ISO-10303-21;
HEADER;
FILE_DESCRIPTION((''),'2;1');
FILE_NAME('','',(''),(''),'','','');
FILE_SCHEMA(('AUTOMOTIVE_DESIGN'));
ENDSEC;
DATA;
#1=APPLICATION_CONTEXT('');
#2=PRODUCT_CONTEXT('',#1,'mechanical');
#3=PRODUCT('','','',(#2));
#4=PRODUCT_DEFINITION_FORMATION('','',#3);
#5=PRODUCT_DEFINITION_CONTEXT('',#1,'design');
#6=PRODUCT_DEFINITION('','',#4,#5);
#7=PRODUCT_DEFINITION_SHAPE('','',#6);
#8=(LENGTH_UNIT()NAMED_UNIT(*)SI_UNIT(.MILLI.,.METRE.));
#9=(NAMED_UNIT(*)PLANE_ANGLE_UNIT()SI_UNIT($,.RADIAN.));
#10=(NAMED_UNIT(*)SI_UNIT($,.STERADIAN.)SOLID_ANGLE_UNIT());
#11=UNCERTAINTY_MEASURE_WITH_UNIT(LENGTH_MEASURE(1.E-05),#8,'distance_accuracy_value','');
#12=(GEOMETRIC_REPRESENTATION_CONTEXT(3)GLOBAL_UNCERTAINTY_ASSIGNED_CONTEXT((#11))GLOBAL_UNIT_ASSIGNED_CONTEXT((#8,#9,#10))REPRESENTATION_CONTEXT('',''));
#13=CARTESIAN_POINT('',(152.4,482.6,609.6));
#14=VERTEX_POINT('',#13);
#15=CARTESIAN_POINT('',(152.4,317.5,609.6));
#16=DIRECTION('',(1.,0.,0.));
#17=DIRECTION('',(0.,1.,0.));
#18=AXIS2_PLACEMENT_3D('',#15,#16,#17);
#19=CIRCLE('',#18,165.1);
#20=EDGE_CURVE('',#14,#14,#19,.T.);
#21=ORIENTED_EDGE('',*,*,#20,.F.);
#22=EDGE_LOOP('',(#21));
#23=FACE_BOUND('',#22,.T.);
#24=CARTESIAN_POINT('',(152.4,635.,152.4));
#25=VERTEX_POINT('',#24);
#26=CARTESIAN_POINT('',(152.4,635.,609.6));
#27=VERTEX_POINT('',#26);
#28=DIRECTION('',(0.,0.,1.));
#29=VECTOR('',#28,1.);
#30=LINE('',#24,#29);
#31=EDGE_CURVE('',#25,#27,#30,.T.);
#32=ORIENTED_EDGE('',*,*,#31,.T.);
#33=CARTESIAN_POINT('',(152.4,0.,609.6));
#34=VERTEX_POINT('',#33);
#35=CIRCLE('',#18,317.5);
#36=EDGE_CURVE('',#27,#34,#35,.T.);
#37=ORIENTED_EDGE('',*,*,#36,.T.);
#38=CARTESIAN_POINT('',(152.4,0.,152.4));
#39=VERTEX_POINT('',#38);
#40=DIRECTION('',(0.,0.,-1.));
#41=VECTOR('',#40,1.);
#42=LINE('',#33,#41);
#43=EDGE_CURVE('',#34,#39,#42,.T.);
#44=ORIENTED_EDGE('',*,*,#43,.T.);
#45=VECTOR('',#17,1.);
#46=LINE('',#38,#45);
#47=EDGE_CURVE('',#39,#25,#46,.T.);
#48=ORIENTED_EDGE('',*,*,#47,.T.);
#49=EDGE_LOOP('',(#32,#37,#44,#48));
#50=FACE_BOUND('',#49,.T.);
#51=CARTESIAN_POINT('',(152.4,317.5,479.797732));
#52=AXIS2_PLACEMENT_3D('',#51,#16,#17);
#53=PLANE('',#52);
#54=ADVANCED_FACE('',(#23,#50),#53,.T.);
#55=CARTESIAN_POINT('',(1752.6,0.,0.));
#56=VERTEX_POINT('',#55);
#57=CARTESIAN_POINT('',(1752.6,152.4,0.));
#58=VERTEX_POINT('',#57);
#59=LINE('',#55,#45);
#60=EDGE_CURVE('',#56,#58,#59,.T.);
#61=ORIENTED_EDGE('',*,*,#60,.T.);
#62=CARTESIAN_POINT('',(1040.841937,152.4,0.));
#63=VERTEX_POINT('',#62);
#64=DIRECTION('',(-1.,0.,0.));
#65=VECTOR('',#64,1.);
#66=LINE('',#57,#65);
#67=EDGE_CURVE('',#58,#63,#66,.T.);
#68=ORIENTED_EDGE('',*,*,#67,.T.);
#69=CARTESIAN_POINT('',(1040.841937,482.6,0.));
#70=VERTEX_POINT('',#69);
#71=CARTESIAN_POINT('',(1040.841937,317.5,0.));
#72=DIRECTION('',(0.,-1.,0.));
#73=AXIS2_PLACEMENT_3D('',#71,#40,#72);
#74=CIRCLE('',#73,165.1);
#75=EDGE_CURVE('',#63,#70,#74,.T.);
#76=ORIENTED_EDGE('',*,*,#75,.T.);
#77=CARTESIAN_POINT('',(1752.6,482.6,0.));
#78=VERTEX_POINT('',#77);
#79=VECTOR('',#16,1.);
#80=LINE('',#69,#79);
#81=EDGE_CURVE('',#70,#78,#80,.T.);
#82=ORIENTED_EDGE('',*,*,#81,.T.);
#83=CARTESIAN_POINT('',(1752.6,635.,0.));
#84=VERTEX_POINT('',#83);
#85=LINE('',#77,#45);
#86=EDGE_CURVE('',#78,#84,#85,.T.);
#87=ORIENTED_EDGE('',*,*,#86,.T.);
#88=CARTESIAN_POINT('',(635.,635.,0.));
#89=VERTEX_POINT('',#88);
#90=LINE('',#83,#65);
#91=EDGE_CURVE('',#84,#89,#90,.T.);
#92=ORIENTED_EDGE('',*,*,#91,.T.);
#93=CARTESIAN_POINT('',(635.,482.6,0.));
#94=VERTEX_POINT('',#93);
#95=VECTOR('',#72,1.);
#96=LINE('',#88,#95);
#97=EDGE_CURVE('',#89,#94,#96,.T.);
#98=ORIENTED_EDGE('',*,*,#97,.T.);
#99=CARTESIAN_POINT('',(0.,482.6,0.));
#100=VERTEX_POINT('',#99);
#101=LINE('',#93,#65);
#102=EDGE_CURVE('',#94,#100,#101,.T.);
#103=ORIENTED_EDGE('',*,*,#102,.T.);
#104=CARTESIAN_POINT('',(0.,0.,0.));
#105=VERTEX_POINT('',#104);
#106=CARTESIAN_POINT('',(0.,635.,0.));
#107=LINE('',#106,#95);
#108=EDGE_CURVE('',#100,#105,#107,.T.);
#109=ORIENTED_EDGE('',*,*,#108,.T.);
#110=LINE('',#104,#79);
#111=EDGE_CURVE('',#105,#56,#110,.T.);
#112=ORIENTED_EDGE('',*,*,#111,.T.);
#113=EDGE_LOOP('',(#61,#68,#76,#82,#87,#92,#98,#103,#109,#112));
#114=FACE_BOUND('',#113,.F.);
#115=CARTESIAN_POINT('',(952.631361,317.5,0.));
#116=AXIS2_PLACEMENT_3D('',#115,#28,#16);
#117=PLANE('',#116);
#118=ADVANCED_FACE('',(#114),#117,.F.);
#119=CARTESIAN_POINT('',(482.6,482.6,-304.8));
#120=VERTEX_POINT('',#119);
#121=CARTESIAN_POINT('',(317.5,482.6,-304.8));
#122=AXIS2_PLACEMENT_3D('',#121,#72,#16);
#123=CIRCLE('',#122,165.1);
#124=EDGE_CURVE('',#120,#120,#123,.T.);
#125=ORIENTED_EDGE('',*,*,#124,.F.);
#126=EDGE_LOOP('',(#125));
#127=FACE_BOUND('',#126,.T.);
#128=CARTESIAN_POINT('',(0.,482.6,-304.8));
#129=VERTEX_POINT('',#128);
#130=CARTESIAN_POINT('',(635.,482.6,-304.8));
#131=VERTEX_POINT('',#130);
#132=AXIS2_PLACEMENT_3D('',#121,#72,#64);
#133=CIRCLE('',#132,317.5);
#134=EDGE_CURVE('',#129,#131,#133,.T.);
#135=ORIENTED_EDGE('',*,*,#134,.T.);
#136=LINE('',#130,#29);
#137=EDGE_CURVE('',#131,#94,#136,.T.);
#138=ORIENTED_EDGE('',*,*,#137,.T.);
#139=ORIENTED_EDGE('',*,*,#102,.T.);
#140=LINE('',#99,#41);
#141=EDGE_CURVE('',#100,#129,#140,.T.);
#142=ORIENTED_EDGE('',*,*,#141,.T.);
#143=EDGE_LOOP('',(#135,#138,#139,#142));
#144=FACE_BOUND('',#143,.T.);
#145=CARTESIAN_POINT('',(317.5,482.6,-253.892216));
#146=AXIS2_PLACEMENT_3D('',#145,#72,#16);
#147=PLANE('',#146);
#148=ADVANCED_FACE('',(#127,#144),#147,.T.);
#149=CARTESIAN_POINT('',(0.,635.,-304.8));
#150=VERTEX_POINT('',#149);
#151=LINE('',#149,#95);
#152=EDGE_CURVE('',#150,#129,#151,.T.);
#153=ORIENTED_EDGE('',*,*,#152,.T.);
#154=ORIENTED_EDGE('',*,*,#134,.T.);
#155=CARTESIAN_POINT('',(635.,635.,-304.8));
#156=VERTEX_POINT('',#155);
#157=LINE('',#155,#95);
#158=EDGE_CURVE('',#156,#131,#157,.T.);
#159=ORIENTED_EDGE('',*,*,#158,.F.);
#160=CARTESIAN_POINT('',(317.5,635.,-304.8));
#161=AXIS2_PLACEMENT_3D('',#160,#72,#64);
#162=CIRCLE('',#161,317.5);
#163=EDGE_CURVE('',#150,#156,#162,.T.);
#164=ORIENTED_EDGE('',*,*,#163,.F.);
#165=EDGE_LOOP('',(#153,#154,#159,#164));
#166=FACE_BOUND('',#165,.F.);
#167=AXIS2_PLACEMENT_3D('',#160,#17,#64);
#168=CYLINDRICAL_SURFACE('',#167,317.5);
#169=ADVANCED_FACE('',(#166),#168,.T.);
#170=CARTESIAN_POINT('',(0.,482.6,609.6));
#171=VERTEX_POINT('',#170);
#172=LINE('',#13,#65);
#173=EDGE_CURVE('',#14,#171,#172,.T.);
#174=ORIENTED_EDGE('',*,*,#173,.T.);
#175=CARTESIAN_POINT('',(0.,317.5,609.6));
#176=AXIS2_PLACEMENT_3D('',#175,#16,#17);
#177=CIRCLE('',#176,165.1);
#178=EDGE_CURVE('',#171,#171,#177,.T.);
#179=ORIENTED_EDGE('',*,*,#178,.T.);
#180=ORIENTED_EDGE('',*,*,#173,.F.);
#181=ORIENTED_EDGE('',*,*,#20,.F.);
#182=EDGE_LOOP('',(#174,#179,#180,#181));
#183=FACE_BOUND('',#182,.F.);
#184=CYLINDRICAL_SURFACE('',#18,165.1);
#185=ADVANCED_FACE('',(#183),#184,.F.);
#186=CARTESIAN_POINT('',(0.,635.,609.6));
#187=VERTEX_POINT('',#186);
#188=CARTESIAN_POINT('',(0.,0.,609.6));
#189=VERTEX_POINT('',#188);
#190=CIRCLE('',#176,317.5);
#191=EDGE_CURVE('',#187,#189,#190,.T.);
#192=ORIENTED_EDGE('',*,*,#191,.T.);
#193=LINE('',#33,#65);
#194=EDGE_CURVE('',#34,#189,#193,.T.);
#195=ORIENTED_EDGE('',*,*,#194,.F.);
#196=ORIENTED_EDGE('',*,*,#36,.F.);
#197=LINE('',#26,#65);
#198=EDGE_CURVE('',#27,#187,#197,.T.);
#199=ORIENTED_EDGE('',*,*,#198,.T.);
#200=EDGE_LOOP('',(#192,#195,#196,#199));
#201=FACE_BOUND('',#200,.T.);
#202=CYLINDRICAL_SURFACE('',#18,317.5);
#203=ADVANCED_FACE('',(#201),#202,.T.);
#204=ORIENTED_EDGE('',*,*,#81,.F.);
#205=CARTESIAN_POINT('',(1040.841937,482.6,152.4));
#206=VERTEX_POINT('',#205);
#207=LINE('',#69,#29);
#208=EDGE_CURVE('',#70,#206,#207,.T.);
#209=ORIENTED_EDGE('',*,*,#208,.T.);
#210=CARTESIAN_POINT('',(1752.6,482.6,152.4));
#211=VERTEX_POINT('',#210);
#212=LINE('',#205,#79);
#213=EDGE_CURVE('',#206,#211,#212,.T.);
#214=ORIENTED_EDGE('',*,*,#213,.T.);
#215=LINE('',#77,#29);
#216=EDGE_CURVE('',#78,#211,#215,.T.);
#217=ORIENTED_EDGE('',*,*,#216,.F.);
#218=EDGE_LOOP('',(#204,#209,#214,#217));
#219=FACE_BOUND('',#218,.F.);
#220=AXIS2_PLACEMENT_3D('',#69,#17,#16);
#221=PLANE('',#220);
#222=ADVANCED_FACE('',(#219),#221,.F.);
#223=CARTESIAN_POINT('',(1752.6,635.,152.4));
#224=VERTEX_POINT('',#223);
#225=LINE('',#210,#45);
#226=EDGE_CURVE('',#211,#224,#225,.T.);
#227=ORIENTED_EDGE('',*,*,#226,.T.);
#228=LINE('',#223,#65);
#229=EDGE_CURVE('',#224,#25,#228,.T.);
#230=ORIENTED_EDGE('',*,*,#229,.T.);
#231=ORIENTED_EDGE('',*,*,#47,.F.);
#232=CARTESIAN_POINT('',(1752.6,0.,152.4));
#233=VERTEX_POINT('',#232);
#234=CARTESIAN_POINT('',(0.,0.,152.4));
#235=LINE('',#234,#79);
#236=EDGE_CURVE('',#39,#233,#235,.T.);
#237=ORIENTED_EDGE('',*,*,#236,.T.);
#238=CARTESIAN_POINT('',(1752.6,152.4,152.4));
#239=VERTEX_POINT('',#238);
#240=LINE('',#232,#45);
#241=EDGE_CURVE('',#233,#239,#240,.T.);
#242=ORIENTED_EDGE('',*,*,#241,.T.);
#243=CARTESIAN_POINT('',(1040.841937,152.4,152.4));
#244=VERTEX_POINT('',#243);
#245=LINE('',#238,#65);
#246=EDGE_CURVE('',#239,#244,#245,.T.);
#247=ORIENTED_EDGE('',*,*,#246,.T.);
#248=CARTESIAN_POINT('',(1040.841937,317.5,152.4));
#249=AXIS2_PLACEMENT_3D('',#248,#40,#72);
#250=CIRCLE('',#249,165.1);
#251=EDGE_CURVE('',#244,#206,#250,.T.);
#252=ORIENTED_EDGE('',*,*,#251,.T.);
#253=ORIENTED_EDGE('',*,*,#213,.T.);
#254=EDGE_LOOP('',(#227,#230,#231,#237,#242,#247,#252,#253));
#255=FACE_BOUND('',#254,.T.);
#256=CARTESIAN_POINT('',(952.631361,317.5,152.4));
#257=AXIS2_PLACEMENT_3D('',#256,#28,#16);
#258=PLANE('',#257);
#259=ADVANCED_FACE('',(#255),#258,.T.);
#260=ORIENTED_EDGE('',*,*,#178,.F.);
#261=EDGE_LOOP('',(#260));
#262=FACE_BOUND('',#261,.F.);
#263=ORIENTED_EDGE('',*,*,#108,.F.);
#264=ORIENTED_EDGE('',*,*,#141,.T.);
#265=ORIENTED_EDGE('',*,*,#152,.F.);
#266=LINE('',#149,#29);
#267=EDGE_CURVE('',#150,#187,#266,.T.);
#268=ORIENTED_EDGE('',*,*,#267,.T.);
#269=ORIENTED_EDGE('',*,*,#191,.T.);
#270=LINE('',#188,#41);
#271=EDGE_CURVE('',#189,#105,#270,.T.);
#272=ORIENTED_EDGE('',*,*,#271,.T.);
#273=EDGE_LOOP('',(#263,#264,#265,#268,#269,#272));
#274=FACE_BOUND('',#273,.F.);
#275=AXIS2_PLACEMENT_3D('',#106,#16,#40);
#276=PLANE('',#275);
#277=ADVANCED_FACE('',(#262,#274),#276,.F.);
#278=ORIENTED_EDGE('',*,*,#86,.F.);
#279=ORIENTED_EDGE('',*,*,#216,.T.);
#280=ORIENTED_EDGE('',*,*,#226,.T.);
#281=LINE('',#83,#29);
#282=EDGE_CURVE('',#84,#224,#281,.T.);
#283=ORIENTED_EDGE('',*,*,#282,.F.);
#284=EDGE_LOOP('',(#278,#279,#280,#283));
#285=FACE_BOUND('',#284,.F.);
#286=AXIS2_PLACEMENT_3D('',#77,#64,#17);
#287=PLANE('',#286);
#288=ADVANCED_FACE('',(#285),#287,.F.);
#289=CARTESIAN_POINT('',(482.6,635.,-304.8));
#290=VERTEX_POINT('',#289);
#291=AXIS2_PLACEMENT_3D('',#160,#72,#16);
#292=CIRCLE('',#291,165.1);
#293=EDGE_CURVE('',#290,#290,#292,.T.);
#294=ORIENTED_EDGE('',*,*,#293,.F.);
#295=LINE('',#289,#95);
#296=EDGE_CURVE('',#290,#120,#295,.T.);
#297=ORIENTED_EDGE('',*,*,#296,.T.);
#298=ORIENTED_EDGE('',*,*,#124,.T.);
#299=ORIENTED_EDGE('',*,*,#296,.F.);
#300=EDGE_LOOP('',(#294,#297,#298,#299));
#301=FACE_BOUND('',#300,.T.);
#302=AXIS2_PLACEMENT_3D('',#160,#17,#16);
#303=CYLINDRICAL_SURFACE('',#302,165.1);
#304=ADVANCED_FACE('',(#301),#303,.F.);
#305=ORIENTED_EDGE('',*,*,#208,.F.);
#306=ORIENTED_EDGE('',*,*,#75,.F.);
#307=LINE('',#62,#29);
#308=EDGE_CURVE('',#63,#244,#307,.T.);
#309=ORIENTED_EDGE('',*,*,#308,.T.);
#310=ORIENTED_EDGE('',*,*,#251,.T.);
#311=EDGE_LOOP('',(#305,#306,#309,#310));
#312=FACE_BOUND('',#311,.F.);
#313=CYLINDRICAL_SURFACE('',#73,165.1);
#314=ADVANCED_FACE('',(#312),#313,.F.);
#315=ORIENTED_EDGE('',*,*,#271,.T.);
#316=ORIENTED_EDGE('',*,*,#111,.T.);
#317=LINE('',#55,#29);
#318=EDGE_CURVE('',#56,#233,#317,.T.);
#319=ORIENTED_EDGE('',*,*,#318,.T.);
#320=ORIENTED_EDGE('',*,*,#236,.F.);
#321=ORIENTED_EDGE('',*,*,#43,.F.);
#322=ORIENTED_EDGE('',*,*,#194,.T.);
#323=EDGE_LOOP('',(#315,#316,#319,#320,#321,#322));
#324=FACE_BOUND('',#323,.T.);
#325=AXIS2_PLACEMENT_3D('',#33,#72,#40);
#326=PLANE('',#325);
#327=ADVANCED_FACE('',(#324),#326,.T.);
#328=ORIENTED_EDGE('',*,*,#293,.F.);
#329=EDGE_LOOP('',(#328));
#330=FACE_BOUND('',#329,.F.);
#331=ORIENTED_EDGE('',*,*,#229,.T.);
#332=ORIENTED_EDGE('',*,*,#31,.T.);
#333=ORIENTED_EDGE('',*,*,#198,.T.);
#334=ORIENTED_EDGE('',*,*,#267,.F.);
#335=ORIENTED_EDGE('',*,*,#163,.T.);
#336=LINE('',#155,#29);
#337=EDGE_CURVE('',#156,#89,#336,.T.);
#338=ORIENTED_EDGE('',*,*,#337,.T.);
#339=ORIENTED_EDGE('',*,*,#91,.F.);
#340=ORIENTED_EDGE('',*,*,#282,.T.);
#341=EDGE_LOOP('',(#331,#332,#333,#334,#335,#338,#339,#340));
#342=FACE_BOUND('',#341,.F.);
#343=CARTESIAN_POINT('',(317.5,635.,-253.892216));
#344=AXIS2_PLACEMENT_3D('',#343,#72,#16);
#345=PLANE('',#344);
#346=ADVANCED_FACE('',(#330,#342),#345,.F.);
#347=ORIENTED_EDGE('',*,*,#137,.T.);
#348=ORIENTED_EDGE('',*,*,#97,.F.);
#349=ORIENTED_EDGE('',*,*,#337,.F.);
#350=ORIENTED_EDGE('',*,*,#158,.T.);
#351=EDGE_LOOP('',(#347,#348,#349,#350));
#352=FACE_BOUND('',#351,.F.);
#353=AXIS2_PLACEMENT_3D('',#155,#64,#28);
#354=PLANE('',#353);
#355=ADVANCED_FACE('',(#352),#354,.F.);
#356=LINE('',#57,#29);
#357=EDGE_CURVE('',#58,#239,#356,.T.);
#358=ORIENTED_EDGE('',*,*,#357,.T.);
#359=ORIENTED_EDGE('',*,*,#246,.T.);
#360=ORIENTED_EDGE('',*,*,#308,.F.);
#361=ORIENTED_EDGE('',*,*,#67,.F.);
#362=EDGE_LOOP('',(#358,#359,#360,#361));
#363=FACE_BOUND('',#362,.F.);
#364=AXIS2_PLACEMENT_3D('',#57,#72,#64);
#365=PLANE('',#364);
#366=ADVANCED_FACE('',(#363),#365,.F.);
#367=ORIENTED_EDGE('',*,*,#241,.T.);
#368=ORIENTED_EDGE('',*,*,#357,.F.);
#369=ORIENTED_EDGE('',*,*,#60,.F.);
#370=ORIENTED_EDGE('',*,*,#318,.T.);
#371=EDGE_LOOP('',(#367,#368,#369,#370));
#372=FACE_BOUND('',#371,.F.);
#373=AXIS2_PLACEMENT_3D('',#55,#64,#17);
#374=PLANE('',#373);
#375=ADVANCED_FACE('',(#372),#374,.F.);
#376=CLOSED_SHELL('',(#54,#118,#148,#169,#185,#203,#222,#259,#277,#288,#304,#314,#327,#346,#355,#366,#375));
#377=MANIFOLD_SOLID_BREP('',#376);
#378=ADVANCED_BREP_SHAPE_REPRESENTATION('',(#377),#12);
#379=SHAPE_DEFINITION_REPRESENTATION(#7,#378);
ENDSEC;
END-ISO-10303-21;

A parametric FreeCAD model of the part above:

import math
import FreeCAD as App
import Part
import Sketcher
Q = App.Units.Quantity

doc = App.newDocument("Part")
params = doc.addObject("Spreadsheet::Sheet", "Params")
for row, (alias, value) in enumerate([
    ("sketch1_radius", "6.5 in"),
    ("sketch1_width", "69 in"),
    ("sketch1_height", "25 in"),
    ("pad1_length", "6 in"),
    ("sketch2_diameter", "13 in"),
    ("sketch2_radius", "12.5 in"),
    ("sketch2_height", "18 in"),
    ("pad2_length", "6 in"),
    ("sketch3_diameter", "13 in"),
    ("sketch3_radius", "12.5 in"),
    ("sketch3_height", "12 in"),
    ("pad3_length", "6 in"),
], start=1):
    params.set(f"A{row}", alias)
    params.set(f"B{row}", "=" + value)
    params.setAlias(f"B{row}", alias)

body = doc.addObject("PartDesign::Body", "Body")

sketch1 = body.newObject("Sketcher::SketchObject", "Sketch")
sketch1.AttachmentSupport = (doc.getObject("XY_Plane"), [""])
sketch1.MapMode = "FlatFace"
sketch1.addGeometry(Part.LineSegment(App.Vector(0, 635, 0), App.Vector(0, 0, 0)), False)
sketch1.addGeometry(Part.LineSegment(App.Vector(0, 0, 0), App.Vector(1752.6, 0, 0)), False)
sketch1.addGeometry(Part.LineSegment(App.Vector(1752.6, 0, 0), App.Vector(1752.6, 152.4, 0)), False)
sketch1.addGeometry(Part.LineSegment(App.Vector(1752.6, 152.4, 0), App.Vector(1040.841937, 152.4, 0)), False)
sketch1.addGeometry(Part.ArcOfCircle(Part.Circle(App.Vector(1040.841937, 317.5, 0), App.Vector(0, 0, 1), 165.1), math.radians(90), math.radians(270)), False)
sketch1.addGeometry(Part.LineSegment(App.Vector(1040.841937, 482.6, 0), App.Vector(1752.6, 482.6, 0)), False)
sketch1.addGeometry(Part.LineSegment(App.Vector(1752.6, 482.6, 0), App.Vector(1752.6, 635, 0)), False)
sketch1.addGeometry(Part.LineSegment(App.Vector(1752.6, 635, 0), App.Vector(0, 635, 0)), False)
sketch1.addConstraint(Sketcher.Constraint("Coincident", 0, 2, 1, 1))
sketch1.addConstraint(Sketcher.Constraint("Coincident", 1, 2, 2, 1))
sketch1.addConstraint(Sketcher.Constraint("Coincident", 2, 2, 3, 1))
sketch1.addConstraint(Sketcher.Constraint("Tangent", 3, 2, 4, 2))
sketch1.addConstraint(Sketcher.Constraint("Tangent", 4, 1, 5, 1))
sketch1.addConstraint(Sketcher.Constraint("Coincident", 5, 2, 6, 1))
sketch1.addConstraint(Sketcher.Constraint("Coincident", 6, 2, 7, 1))
sketch1.addConstraint(Sketcher.Constraint("Coincident", 7, 2, 0, 1))
sketch1.addConstraint(Sketcher.Constraint("Vertical", 0))
sketch1.addConstraint(Sketcher.Constraint("Horizontal", 1))
sketch1.addConstraint(Sketcher.Constraint("Vertical", 2))
sketch1.addConstraint(Sketcher.Constraint("Horizontal", 3))
sketch1.addConstraint(Sketcher.Constraint("Horizontal", 5))
sketch1.addConstraint(Sketcher.Constraint("Vertical", 6))
sketch1.addConstraint(Sketcher.Constraint("Horizontal", 7))
sketch1.addConstraint(Sketcher.Constraint("Coincident", 0, 2, -1, 1))
sketch1.addConstraint(Sketcher.Constraint("Vertical", 2, 2, 5, 2))
sketch1.addConstraint(Sketcher.Constraint("Equal", 2, 6))
sketch1.addConstraint(Sketcher.Constraint("Radius", 4, Q("6.5 in")))
sketch1.addConstraint(Sketcher.Constraint("DistanceX", 1, 1, 1, 2, Q("69 in")))
sketch1.addConstraint(Sketcher.Constraint("DistanceY", 0, 2, 0, 1, Q("25 in")))
sketch1.addConstraint(Sketcher.Constraint("DistanceX", 3, 2, 3, 1, Q("711.758063 mm")))
sketch1.setExpression("Constraints[18]", "Params.sketch1_radius")
sketch1.setExpression("Constraints[19]", "Params.sketch1_width")
sketch1.setExpression("Constraints[20]", "Params.sketch1_height")
pad1 = body.newObject("PartDesign::Pad", "Pad")
pad1.Profile = sketch1
pad1.setExpression("Length", "Params.pad1_length")

sketch2 = body.newObject("Sketcher::SketchObject", "Sketch001")
sketch2.AttachmentSupport = (doc.getObject("YZ_Plane"), [""])
sketch2.MapMode = "FlatFace"
sketch2.AttachmentOffset = App.Placement(App.Vector(0, 0, 6 * 25.4), App.Rotation())
sketch2.addGeometry(Part.LineSegment(App.Vector(0, 609.6, 0), App.Vector(0, 152.4, 0)), False)
sketch2.addGeometry(Part.LineSegment(App.Vector(0, 152.4, 0), App.Vector(635, 152.4, 0)), False)
sketch2.addGeometry(Part.LineSegment(App.Vector(635, 152.4, 0), App.Vector(635, 609.6, 0)), False)
sketch2.addGeometry(Part.ArcOfCircle(Part.Circle(App.Vector(317.5, 609.6, 0), App.Vector(0, 0, 1), 317.5), math.radians(0), math.radians(180)), False)
sketch2.addGeometry(Part.Circle(App.Vector(317.5, 609.6, 0), App.Vector(0, 0, 1), 165.1), False)
sketch2.addConstraint(Sketcher.Constraint("Coincident", 0, 2, 1, 1))
sketch2.addConstraint(Sketcher.Constraint("Coincident", 1, 2, 2, 1))
sketch2.addConstraint(Sketcher.Constraint("Tangent", 2, 2, 3, 1))
sketch2.addConstraint(Sketcher.Constraint("Tangent", 3, 2, 0, 1))
sketch2.addConstraint(Sketcher.Constraint("Vertical", 0))
sketch2.addConstraint(Sketcher.Constraint("Horizontal", 1))
sketch2.addConstraint(Sketcher.Constraint("Vertical", 2))
sketch2.addConstraint(Sketcher.Constraint("Coincident", 4, 3, 3, 3))
sketch2.addConstraint(Sketcher.Constraint("PointOnObject", 0, 2, -2))
sketch2.addConstraint(Sketcher.Constraint("Diameter", 4, Q("13 in")))
sketch2.addConstraint(Sketcher.Constraint("Radius", 3, Q("12.5 in")))
sketch2.addConstraint(Sketcher.Constraint("DistanceY", 0, 2, 0, 1, Q("18 in")))
sketch2.addConstraint(Sketcher.Constraint("DistanceY", -1, 1, 3, 3, Q("24 in")))
sketch2.setExpression("Constraints[9]", "Params.sketch2_diameter")
sketch2.setExpression("Constraints[10]", "Params.sketch2_radius")
sketch2.setExpression("Constraints[11]", "Params.sketch2_height")
pad2 = body.newObject("PartDesign::Pad", "Pad001")
pad2.Profile = sketch2
pad2.setExpression("Length", "Params.pad2_length")
pad2.Reversed = True

sketch3 = body.newObject("Sketcher::SketchObject", "Sketch002")
sketch3.AttachmentSupport = (doc.getObject("XZ_Plane"), [""])
sketch3.MapMode = "FlatFace"
sketch3.AttachmentOffset = App.Placement(App.Vector(0, 0, -25 * 25.4), App.Rotation())
sketch3.addGeometry(Part.LineSegment(App.Vector(635, 0, 0), App.Vector(0, 0, 0)), False)
sketch3.addGeometry(Part.LineSegment(App.Vector(0, 0, 0), App.Vector(0, -304.8, 0)), False)
sketch3.addGeometry(Part.ArcOfCircle(Part.Circle(App.Vector(317.5, -304.8, 0), App.Vector(0, 0, 1), 317.5), math.radians(180), math.radians(360)), False)
sketch3.addGeometry(Part.LineSegment(App.Vector(635, -304.8, 0), App.Vector(635, 0, 0)), False)
sketch3.addGeometry(Part.Circle(App.Vector(317.5, -304.8, 0), App.Vector(0, 0, 1), 165.1), False)
sketch3.addConstraint(Sketcher.Constraint("Coincident", 0, 2, 1, 1))
sketch3.addConstraint(Sketcher.Constraint("Tangent", 1, 2, 2, 1))
sketch3.addConstraint(Sketcher.Constraint("Tangent", 2, 2, 3, 1))
sketch3.addConstraint(Sketcher.Constraint("Coincident", 3, 2, 0, 1))
sketch3.addConstraint(Sketcher.Constraint("Horizontal", 0))
sketch3.addConstraint(Sketcher.Constraint("Vertical", 1))
sketch3.addConstraint(Sketcher.Constraint("Vertical", 3))
sketch3.addConstraint(Sketcher.Constraint("Coincident", 0, 2, -1, 1))
sketch3.addConstraint(Sketcher.Constraint("Coincident", 4, 3, 2, 3))
sketch3.addConstraint(Sketcher.Constraint("Diameter", 4, Q("13 in")))
sketch3.addConstraint(Sketcher.Constraint("Radius", 2, Q("12.5 in")))
sketch3.addConstraint(Sketcher.Constraint("DistanceY", 1, 2, 1, 1, Q("12 in")))
sketch3.setExpression("Constraints[9]", "Params.sketch3_diameter")
sketch3.setExpression("Constraints[10]", "Params.sketch3_radius")
sketch3.setExpression("Constraints[11]", "Params.sketch3_height")
pad3 = body.newObject("PartDesign::Pad", "Pad002")
pad3.Profile = sketch3
pad3.setExpression("Length", "Params.pad3_length")

doc.recompute()
